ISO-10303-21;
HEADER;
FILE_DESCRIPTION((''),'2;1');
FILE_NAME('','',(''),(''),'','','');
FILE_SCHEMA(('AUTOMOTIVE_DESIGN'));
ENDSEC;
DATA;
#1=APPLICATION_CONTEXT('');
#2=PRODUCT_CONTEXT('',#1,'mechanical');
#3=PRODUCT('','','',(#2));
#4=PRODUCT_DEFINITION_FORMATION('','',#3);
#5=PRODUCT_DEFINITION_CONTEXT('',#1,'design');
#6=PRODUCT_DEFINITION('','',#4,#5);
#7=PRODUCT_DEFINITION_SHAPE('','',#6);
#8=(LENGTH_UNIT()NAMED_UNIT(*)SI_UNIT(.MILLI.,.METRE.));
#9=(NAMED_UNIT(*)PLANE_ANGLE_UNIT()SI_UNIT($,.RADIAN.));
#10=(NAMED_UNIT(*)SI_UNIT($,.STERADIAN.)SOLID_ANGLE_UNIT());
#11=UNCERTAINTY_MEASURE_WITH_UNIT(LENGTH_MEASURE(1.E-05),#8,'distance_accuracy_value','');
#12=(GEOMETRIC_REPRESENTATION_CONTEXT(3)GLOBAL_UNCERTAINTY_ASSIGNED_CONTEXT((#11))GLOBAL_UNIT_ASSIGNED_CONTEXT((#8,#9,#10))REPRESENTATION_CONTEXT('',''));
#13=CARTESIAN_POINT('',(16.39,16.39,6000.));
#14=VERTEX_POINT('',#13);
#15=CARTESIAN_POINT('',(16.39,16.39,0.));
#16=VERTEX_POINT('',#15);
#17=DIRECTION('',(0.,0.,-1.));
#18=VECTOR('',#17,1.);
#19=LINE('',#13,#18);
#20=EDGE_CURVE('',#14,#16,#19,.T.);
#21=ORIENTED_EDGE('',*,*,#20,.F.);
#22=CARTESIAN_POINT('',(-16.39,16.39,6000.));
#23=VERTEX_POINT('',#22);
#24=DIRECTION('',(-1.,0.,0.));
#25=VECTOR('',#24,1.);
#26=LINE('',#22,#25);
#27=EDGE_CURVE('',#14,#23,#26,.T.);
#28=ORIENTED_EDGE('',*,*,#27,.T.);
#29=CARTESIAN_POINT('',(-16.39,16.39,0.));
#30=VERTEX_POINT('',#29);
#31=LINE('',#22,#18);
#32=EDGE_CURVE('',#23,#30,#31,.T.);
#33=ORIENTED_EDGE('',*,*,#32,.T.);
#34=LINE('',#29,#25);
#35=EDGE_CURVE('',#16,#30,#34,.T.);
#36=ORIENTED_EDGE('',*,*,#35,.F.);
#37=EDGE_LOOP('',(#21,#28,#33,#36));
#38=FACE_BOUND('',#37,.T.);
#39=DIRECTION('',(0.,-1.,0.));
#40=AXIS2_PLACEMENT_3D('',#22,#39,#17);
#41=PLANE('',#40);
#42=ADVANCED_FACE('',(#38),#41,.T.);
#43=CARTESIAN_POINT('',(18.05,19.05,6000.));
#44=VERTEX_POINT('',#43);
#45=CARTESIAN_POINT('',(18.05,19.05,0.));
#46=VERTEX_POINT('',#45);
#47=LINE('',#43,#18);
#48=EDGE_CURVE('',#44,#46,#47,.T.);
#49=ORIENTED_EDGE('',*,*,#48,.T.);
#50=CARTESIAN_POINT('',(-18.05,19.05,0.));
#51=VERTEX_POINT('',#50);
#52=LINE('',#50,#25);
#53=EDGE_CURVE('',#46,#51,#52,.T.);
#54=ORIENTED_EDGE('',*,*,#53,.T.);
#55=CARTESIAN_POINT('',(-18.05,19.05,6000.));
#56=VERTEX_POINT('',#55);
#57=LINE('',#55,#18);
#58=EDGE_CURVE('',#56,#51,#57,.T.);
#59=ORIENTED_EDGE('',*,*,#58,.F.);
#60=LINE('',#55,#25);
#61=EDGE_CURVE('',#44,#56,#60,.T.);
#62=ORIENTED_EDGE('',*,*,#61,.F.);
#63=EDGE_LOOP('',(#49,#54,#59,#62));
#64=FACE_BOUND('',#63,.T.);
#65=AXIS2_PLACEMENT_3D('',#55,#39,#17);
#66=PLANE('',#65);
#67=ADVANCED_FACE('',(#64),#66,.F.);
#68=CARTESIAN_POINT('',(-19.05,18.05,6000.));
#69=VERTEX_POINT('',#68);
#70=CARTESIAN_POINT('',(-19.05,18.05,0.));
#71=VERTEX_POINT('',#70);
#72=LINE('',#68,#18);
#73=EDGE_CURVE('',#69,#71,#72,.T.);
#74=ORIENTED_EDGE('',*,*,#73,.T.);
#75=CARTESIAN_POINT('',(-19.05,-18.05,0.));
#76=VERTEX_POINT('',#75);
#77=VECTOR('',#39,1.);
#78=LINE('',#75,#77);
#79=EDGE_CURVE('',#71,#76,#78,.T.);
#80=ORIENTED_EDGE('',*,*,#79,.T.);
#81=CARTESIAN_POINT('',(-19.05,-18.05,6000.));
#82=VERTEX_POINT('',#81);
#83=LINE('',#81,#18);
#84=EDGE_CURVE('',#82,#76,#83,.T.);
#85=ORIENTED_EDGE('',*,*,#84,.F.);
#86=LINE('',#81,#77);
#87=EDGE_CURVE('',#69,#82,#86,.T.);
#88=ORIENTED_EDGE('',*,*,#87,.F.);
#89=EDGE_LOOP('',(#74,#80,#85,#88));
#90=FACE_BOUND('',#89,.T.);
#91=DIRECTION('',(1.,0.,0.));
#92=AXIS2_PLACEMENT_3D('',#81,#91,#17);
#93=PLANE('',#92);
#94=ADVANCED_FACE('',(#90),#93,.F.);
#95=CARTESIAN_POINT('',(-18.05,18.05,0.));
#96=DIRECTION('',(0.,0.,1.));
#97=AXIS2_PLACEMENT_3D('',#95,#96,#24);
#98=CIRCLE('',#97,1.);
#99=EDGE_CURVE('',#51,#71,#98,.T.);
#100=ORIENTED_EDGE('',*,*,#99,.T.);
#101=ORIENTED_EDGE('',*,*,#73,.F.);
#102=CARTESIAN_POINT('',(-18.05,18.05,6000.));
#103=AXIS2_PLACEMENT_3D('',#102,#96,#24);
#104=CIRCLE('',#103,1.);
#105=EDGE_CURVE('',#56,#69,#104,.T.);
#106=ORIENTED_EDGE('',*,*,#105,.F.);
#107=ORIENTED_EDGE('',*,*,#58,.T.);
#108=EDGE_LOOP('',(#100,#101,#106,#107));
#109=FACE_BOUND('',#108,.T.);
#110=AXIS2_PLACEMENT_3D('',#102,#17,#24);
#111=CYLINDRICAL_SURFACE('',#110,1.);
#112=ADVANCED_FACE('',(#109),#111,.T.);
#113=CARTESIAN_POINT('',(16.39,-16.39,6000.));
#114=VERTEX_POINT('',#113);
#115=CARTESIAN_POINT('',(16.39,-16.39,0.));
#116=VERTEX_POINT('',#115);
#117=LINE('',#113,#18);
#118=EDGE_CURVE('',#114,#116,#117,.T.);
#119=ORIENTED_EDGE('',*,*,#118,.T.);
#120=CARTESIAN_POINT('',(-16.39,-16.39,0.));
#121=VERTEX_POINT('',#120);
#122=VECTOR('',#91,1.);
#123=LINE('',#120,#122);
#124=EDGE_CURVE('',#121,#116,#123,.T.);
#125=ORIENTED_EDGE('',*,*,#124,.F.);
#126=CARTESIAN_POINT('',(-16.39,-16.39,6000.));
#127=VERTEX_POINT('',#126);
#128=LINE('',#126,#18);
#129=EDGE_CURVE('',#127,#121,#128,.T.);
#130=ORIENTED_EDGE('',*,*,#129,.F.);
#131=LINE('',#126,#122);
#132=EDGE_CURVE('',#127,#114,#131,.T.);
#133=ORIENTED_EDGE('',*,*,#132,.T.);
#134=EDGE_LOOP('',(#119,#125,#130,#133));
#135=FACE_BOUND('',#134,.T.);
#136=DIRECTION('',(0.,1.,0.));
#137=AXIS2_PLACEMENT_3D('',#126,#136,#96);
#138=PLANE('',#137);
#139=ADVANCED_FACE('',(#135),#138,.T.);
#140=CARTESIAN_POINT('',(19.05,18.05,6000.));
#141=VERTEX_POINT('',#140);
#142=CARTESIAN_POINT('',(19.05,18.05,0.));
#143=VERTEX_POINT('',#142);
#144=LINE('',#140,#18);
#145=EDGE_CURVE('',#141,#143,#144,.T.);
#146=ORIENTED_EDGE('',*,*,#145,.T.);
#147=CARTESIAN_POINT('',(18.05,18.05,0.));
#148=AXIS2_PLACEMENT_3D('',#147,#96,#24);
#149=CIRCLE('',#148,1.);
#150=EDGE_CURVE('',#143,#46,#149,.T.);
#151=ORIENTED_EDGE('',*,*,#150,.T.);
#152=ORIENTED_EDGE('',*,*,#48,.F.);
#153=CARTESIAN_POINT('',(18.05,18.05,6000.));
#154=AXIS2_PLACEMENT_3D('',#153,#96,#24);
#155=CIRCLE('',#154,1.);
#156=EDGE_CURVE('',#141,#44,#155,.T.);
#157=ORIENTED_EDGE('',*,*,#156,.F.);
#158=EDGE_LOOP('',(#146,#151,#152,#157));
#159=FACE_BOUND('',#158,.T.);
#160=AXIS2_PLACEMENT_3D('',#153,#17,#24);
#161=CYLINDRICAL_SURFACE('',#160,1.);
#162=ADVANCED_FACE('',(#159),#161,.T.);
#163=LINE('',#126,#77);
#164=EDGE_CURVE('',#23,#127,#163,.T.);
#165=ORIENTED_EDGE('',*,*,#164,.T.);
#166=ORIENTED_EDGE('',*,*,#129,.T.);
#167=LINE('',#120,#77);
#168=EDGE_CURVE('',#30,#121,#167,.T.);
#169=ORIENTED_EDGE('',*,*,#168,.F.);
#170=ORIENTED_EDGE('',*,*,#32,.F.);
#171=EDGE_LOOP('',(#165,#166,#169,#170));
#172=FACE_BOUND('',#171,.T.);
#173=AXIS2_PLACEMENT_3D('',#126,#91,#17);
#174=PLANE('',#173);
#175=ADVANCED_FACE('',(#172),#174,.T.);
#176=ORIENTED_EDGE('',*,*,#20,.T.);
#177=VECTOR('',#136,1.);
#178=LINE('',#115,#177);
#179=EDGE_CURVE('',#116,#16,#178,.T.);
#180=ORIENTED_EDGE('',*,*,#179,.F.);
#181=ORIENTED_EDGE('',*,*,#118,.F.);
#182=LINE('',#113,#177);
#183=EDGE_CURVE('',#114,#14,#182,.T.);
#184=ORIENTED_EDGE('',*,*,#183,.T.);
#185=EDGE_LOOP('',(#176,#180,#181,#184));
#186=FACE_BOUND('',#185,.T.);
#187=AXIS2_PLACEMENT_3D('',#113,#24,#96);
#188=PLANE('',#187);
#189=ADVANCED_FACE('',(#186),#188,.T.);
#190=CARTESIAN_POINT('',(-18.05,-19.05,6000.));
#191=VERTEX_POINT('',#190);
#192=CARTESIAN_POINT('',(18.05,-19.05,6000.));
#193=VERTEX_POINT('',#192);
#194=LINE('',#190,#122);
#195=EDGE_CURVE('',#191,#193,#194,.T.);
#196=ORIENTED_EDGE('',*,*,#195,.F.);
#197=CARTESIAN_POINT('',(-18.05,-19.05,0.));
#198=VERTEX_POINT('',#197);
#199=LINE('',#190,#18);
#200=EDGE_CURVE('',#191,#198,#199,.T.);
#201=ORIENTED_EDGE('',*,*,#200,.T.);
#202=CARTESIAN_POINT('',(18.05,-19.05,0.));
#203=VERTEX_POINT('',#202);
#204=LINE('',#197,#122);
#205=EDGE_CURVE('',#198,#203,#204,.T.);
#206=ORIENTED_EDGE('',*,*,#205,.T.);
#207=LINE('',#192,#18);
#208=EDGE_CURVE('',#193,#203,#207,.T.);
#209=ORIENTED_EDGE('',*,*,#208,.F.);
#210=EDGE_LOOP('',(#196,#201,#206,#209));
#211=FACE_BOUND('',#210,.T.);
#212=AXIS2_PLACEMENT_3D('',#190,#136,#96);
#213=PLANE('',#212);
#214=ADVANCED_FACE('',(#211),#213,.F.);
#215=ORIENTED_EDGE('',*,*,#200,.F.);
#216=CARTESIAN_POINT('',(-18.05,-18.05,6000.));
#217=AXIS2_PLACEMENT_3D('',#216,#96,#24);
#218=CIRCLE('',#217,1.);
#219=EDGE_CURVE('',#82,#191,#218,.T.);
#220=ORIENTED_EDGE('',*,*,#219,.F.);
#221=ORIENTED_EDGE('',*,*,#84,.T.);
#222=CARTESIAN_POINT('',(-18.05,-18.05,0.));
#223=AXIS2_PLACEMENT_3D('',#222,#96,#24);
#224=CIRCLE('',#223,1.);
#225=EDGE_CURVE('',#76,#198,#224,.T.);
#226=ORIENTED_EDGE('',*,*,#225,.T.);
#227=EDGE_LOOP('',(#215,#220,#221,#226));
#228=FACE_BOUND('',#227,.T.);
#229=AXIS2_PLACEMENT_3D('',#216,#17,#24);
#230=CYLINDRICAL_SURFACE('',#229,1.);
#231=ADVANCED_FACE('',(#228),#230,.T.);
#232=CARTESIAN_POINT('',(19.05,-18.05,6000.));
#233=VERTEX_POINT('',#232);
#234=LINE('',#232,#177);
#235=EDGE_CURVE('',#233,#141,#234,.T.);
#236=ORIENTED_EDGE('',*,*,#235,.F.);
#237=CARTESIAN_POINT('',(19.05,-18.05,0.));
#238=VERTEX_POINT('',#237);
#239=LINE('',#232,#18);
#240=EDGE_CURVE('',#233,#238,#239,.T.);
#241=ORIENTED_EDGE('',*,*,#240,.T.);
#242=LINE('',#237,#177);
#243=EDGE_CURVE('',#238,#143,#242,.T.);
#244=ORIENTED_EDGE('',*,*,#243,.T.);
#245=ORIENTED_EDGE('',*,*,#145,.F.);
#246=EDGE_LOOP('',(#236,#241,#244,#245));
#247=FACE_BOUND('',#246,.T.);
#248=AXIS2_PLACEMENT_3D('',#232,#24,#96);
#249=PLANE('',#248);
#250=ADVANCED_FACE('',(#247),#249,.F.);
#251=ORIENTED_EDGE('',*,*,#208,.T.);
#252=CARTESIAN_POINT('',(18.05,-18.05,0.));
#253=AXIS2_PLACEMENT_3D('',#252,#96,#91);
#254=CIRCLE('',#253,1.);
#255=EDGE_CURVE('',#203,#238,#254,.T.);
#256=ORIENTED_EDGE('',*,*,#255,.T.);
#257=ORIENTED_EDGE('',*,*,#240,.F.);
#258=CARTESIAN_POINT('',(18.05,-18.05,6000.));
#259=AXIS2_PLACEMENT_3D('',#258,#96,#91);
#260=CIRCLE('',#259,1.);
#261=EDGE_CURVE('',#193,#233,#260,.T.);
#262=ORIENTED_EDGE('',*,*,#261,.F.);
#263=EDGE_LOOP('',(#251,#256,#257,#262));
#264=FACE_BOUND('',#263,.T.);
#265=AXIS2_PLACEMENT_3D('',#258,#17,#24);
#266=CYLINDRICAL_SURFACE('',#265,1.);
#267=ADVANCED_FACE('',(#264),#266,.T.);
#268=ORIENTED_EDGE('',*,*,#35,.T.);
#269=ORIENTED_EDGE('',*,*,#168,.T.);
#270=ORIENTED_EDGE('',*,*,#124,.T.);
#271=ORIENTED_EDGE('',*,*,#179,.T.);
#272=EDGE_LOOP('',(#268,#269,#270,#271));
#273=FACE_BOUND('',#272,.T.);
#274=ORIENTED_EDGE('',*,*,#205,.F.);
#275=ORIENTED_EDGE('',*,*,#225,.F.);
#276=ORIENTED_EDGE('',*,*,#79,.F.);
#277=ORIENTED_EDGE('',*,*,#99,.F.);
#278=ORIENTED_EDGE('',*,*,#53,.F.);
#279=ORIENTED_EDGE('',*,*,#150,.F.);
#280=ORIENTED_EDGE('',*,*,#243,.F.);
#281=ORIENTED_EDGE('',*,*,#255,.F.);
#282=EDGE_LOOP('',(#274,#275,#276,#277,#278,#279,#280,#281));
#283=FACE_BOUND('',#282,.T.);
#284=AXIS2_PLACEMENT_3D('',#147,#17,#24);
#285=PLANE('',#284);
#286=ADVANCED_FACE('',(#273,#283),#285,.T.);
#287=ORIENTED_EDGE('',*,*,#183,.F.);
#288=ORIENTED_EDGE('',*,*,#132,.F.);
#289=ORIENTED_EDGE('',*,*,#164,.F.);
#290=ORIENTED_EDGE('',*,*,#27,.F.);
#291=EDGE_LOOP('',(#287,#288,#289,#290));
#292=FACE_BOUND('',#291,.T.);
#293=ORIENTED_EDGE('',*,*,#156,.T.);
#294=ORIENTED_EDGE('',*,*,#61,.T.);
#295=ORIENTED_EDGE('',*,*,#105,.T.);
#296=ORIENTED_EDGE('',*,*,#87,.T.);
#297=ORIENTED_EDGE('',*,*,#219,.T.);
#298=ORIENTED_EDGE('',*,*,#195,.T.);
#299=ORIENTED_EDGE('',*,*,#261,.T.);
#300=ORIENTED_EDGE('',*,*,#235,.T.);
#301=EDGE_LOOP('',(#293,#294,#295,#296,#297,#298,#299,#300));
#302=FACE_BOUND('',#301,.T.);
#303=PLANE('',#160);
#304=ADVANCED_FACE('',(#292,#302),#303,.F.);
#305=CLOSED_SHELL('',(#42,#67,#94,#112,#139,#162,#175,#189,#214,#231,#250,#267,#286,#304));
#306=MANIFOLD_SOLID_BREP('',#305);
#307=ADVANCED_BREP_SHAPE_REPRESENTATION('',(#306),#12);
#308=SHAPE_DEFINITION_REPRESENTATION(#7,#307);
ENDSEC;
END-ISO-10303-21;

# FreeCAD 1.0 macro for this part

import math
import FreeCAD as App
import Part
import Sketcher


def add_polygon(sketch, points):
    """Adds a closed chain of lines whose ends are joined by coincident constraints."""
    first, n = sketch.GeometryCount, len(points)
    for a, b in zip(points, points[1:] + points[:1]):
        sketch.addGeometry(Part.LineSegment(App.Vector(*a, 0), App.Vector(*b, 0)), False)
    for i in range(n):
        sketch.addConstraint(Sketcher.Constraint("Coincident", first + i, 2, first + (i + 1) % n, 1))

doc = App.newDocument("Part")
params = doc.addObject("Spreadsheet::Sheet", "Params")
for row, (alias, value) in enumerate([
    ("sketch1_radius", "1 mm"),
    ("sketch1_width", "36.1 mm"),
    ("sketch1_width2", "32.78 mm"),
    ("pad1_length", "6000 mm"),
], start=1):
    params.set(f"A{row}", alias)
    params.set(f"B{row}", "=" + value)
    params.setAlias(f"B{row}", alias)

body = doc.addObject("PartDesign::Body", "Body")

# Sketch on XY plane
sketch1 = doc.addObject("Sketcher::SketchObject", "Sketch")
body.addObject(sketch1)
sketch1.AttachmentSupport = (doc.XY_Plane, [""])
sketch1.MapMode = "FlatFace"
sketch1.addGeometry(Part.LineSegment(App.Vector(-18.1, -19.1, 0), App.Vector(18.1, -19.1, 0)), False)  # 0
sketch1.addGeometry(Part.ArcOfCircle(Part.Circle(App.Vector(18, -18, 0), App.Vector(0, 0, 1), 1), math.radians(-90), math.radians(0)), False)  # 1
sketch1.addGeometry(Part.LineSegment(App.Vector(19.1, -18.1, 0), App.Vector(19.1, 18.1, 0)), False)  # 2
sketch1.addGeometry(Part.ArcOfCircle(Part.Circle(App.Vector(18, 18, 0), App.Vector(0, 0, 1), 1), math.radians(0), math.radians(90)), False)  # 3
sketch1.addGeometry(Part.LineSegment(App.Vector(18.1, 19.1, 0), App.Vector(-18.1, 19.1, 0)), False)  # 4
sketch1.addGeometry(Part.ArcOfCircle(Part.Circle(App.Vector(-18, 18, 0), App.Vector(0, 0, 1), 1), math.radians(90), math.radians(180)), False)  # 5
sketch1.addGeometry(Part.LineSegment(App.Vector(-19.1, 18.1, 0), App.Vector(-19.1, -18.1, 0)), False)  # 6
sketch1.addGeometry(Part.ArcOfCircle(Part.Circle(App.Vector(-18, -18, 0), App.Vector(0, 0, 1), 1), math.radians(-180), math.radians(-90)), False)  # 7
add_polygon(sketch1, [(16.4, -16.4), (-16.4, -16.4), (-16.4, 16.4), (16.4, 16.4)])  # lines 8-11
sketch1.addConstraint([
    Sketcher.Constraint("Tangent", 0, 2, 1, 1),
    Sketcher.Constraint("Tangent", 1, 2, 2, 1),
    Sketcher.Constraint("Tangent", 2, 2, 3, 1),
    Sketcher.Constraint("Tangent", 3, 2, 4, 1),
    Sketcher.Constraint("Tangent", 4, 2, 5, 1),
    Sketcher.Constraint("Tangent", 5, 2, 6, 1),
    Sketcher.Constraint("Tangent", 6, 2, 7, 1),
    Sketcher.Constraint("Tangent", 7, 2, 0, 1),
    Sketcher.Constraint("Horizontal", 0),
    Sketcher.Constraint("Vertical", 2),
    Sketcher.Constraint("Horizontal", 4),
    Sketcher.Constraint("Vertical", 6),
    Sketcher.Constraint("Horizontal", 8),
    Sketcher.Constraint("Vertical", 9),
    Sketcher.Constraint("Horizontal", 10),
    Sketcher.Constraint("Vertical", 11),
    Sketcher.Constraint("Equal", 1, 3),
    Sketcher.Constraint("Equal", 3, 5),
    Sketcher.Constraint("Equal", 5, 7),
    Sketcher.Constraint("Symmetric", 1, 3, 5, 3, -1, 1),
    Sketcher.Constraint("Symmetric", 8, 2, 10, 2, -1, 1),
    Sketcher.Constraint("Equal", 4, 2),
    Sketcher.Constraint("Equal", 10, 9),
    Sketcher.Constraint("Radius", 1, 1.0),
    Sketcher.Constraint("DistanceX", 0, 1, 0, 2, 36.1),
    Sketcher.Constraint("DistanceX", 8, 2, 8, 1, 32.78),
])
sketch1.setExpression("Constraints[27]", "Params.sketch1_radius")
sketch1.setExpression("Constraints[28]", "Params.sketch1_width")
sketch1.setExpression("Constraints[29]", "Params.sketch1_width2")
pad1 = doc.addObject("PartDesign::Pad", "Pad")
body.addObject(pad1)
pad1.Profile = sketch1
pad1.setExpression("Length", "Params.pad1_length")

doc.recompute()
